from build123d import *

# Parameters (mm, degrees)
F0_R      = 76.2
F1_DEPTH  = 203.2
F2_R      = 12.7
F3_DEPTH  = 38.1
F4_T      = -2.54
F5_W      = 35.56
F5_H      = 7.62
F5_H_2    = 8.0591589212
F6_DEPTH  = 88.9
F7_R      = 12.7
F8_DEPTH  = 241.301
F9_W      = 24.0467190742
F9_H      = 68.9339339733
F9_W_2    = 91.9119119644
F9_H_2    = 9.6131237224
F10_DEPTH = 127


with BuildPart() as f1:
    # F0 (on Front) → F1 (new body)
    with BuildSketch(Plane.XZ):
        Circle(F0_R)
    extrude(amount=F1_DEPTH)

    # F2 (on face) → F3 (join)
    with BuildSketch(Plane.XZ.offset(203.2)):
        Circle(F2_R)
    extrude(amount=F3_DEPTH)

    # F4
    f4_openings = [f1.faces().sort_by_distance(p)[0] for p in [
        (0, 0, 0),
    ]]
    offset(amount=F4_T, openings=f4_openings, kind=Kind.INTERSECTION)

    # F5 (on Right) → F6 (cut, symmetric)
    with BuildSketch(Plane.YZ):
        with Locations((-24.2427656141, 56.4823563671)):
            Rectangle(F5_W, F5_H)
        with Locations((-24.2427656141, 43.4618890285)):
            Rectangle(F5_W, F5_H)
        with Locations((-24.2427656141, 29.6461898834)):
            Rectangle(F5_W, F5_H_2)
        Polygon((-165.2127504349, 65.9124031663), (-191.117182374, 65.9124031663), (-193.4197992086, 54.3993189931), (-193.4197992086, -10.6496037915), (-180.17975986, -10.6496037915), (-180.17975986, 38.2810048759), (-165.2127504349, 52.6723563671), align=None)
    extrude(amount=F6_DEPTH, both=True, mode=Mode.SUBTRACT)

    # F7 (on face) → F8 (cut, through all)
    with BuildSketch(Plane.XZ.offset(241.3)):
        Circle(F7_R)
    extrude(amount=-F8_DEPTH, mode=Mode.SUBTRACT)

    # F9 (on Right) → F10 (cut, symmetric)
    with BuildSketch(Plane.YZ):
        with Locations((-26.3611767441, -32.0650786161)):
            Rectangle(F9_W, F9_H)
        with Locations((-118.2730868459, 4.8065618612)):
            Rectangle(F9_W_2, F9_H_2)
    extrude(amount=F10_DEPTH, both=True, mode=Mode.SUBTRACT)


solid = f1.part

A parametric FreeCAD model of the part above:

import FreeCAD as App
import Part
import Sketcher

V = App.Vector
Q = App.Units.Quantity


def faces_at(feature, points):
    """Names of the faces that lie closest to the given points."""
    faces = feature.Shape.Faces
    near = lambda p: min(range(len(faces)), key=lambda i: faces[i].distToShape(Part.Vertex(*p))[0])
    return sorted({f"Face{near(p) + 1}" for p in points})

doc = App.newDocument("Part")
body = doc.addObject("PartDesign::Body", "Body")

# Sketch on XZ plane
sketch1 = body.newObject("Sketcher::SketchObject", "Sketch")
sketch1.AttachmentSupport = (doc.getObject("XZ_Plane"), [""])
sketch1.MapMode = "FlatFace"
sketch1.addGeometry(Part.Circle(V(0, 0, 0), V(0, 0, 1), 76), False)
sketch1.addConstraint(Sketcher.Constraint("Coincident", 0, 3, -1, 1))
sketch1.addConstraint(Sketcher.Constraint("Diameter", 0, Q("6 in")))
pad1 = body.newObject("PartDesign::Pad", "Pad")
pad1.Profile = sketch1
pad1.Length = Q("8 in")

# Sketch on XZ plane
sketch2 = body.newObject("Sketcher::SketchObject", "Sketch001")
sketch2.AttachmentSupport = (doc.getObject("XZ_Plane"), [""])
sketch2.MapMode = "FlatFace"
sketch2.AttachmentOffset = App.Placement(V(0, 0, 8 * 25.4), App.Rotation())
sketch2.addGeometry(Part.Circle(V(0, 0, 0), V(0, 0, 1), 13), False)
sketch2.addConstraint(Sketcher.Constraint("Coincident", 0, 3, -1, 1))
sketch2.addConstraint(Sketcher.Constraint("Diameter", 0, Q("1 in")))
pad2 = body.newObject("PartDesign::Pad", "Pad001")
pad2.Profile = sketch2
pad2.Length = Q("1.5 in")
doc.recompute()

thickness = body.newObject("PartDesign::Thickness", "Thickness")
thickness.Base = (pad2, faces_at(pad2, [(0, 0, 0)]))
thickness.Value = Q("0.1 in")
thickness.Reversed = True
thickness.Join = "Intersection"

# Sketch on YZ plane
sketch3 = body.newObject("Sketcher::SketchObject", "Sketch002")
sketch3.AttachmentSupport = (doc.getObject("YZ_Plane"), [""])
sketch3.MapMode = "FlatFace"
sketch3.addGeometry(Part.LineSegment(V(-42, 60, 0), V(-42, 53, 0)), False)
sketch3.addGeometry(Part.LineSegment(V(-42, 53, 0), V(-6, 53, 0)), False)
sketch3.addGeometry(Part.LineSegment(V(-6, 53, 0), V(-6, 60, 0)), False)
sketch3.addGeometry(Part.LineSegment(V(-6, 60, 0), V(-42, 60, 0)), False)
sketch3.addGeometry(Part.LineSegment(V(-42, 47, 0), V(-42, 40, 0)), False)
sketch3.addGeometry(Part.LineSegment(V(-42, 40, 0), V(-6, 40, 0)), False)
sketch3.addGeometry(Part.LineSegment(V(-6, 40, 0), V(-6, 47, 0)), False)
sketch3.addGeometry(Part.LineSegment(V(-6, 47, 0), V(-42, 47, 0)), False)
sketch3.addGeometry(Part.LineSegment(V(-42, 34, 0), V(-42, 26, 0)), False)
sketch3.addGeometry(Part.LineSegment(V(-42, 26, 0), V(-6, 26, 0)), False)
sketch3.addGeometry(Part.LineSegment(V(-6, 26, 0), V(-6, 34, 0)), False)
sketch3.addGeometry(Part.LineSegment(V(-6, 34, 0), V(-42, 34, 0)), False)
sketch3.addGeometry(Part.LineSegment(V(-165, 66, 0), V(-191, 66, 0)), False)
sketch3.addGeometry(Part.LineSegment(V(-191, 66, 0), V(-193, 54, 0)), False)
sketch3.addGeometry(Part.LineSegment(V(-193, 54, 0), V(-193, -11, 0)), False)
sketch3.addGeometry(Part.LineSegment(V(-193, -11, 0), V(-180, -11, 0)), False)
sketch3.addGeometry(Part.LineSegment(V(-180, -11, 0), V(-180, 38, 0)), False)
sketch3.addGeometry(Part.LineSegment(V(-180, 38, 0), V(-165, 53, 0)), False)
sketch3.addGeometry(Part.LineSegment(V(-165, 53, 0), V(-165, 66, 0)), False)
sketch3.addConstraint(Sketcher.Constraint("Coincident", 0, 2, 1, 1))
sketch3.addConstraint(Sketcher.Constraint("Coincident", 1, 2, 2, 1))
sketch3.addConstraint(Sketcher.Constraint("Coincident", 2, 2, 3, 1))
sketch3.addConstraint(Sketcher.Constraint("Coincident", 3, 2, 0, 1))
sketch3.addConstraint(Sketcher.Constraint("Coincident", 4, 2, 5, 1))
sketch3.addConstraint(Sketcher.Constraint("Coincident", 5, 2, 6, 1))
sketch3.addConstraint(Sketcher.Constraint("Coincident", 6, 2, 7, 1))
sketch3.addConstraint(Sketcher.Constraint("Coincident", 7, 2, 4, 1))
sketch3.addConstraint(Sketcher.Constraint("Coincident", 8, 2, 9, 1))
sketch3.addConstraint(Sketcher.Constraint("Coincident", 9, 2, 10, 1))
sketch3.addConstraint(Sketcher.Constraint("Coincident", 10, 2, 11, 1))
sketch3.addConstraint(Sketcher.Constraint("Coincident", 11, 2, 8, 1))
sketch3.addConstraint(Sketcher.Constraint("Coincident", 12, 2, 13, 1))
sketch3.addConstraint(Sketcher.Constraint("Coincident", 13, 2, 14, 1))
sketch3.addConstraint(Sketcher.Constraint("Coincident", 14, 2, 15, 1))
sketch3.addConstraint(Sketcher.Constraint("Coincident", 15, 2, 16, 1))
sketch3.addConstraint(Sketcher.Constraint("Coincident", 16, 2, 17, 1))
sketch3.addConstraint(Sketcher.Constraint("Coincident", 17, 2, 18, 1))
sketch3.addConstraint(Sketcher.Constraint("Coincident", 18, 2, 12, 1))
sketch3.addConstraint(Sketcher.Constraint("Vertical", 0))
sketch3.addConstraint(Sketcher.Constraint("Horizontal", 1))
sketch3.addConstraint(Sketcher.Constraint("Vertical", 2))
sketch3.addConstraint(Sketcher.Constraint("Horizontal", 3))
sketch3.addConstraint(Sketcher.Constraint("Vertical", 4))
sketch3.addConstraint(Sketcher.Constraint("Horizontal", 5))
sketch3.addConstraint(Sketcher.Constraint("Vertical", 6))
sketch3.addConstraint(Sketcher.Constraint("Horizontal", 7))
sketch3.addConstraint(Sketcher.Constraint("Vertical", 8))
sketch3.addConstraint(Sketcher.Constraint("Horizontal", 9))
sketch3.addConstraint(Sketcher.Constraint("Vertical", 10))
sketch3.addConstraint(Sketcher.Constraint("Horizontal", 11))
sketch3.addConstraint(Sketcher.Constraint("Horizontal", 12))
sketch3.addConstraint(Sketcher.Constraint("Vertical", 14))
sketch3.addConstraint(Sketcher.Constraint("Horizontal", 15))
sketch3.addConstraint(Sketcher.Constraint("Vertical", 16))
sketch3.addConstraint(Sketcher.Constraint("Vertical", 18))
sketch3.addConstraint(Sketcher.Constraint("Horizontal", 1, 2, 17, 2))
sketch3.addConstraint(Sketcher.Constraint("Vertical", 3, 2, 4, 2))
sketch3.addConstraint(Sketcher.Constraint("Vertical", 2, 2, 5, 2))
sketch3.addConstraint(Sketcher.Constraint("Vertical", 7, 2, 8, 2))
sketch3.addConstraint(Sketcher.Constraint("Vertical", 6, 2, 9, 2))
sketch3.addConstraint(Sketcher.Constraint("Equal", 2, 4))
sketch3.addConstraint(Sketcher.Constraint("DistanceX", 1, 1, 1, 2, Q("1.4 in")))
sketch3.addConstraint(Sketcher.Constraint("DistanceY", 0, 2, 0, 1, Q("0.3 in")))
sketch3.addConstraint(Sketcher.Constraint("DistanceX", 12, 2, 12, 1, Q("25.904432 mm")))
sketch3.addConstraint(Sketcher.Constraint("DistanceX", 15, 1, 15, 2, Q("13.240039 mm")))
sketch3.addConstraint(Sketcher.Constraint("DistanceY", 8, 2, 8, 1, Q("8.059159 mm")))
sketch3.addConstraint(Sketcher.Constraint("DistanceY", 16, 1, 16, 2, Q("48.930609 mm")))
sketch3.addConstraint(Sketcher.Constraint("DistanceX", 13, 2, -1, 1, Q("193.419799 mm")))
sketch3.addConstraint(Sketcher.Constraint("DistanceY", 16, 2, 12, 2, Q("27.631398 mm")))
sketch3.addConstraint(Sketcher.Constraint("Distance", 13, Q("11.741088 mm")))
sketch3.addConstraint(Sketcher.Constraint("DistanceY", 14, 2, 14, 1, Q("65.048923 mm")))
sketch3.addConstraint(Sketcher.Constraint("DistanceY", 18, 1, 18, 2, Q("13.240047 mm")))
sketch3.addConstraint(Sketcher.Constraint("DistanceY", -1, 1, 4, 2, Q("39.651889 mm")))
sketch3.addConstraint(Sketcher.Constraint("DistanceY", -1, 1, 8, 2, Q("25.61661 mm")))
sketch3.addConstraint(Sketcher.Constraint("DistanceY", -1, 1, 13, 2, Q("54.399319 mm")))
sketch3.addConstraint(Sketcher.Constraint("DistanceX", 0, 2, -1, 1, Q("42.022766 mm")))
pocket1 = body.newObject("PartDesign::Pocket", "Pocket")
pocket1.Profile = sketch3
pocket1.Length = Q("7 in")
pocket1.Midplane = True

# Sketch on XZ plane
sketch4 = body.newObject("Sketcher::SketchObject", "Sketch003")
sketch4.AttachmentSupport = (doc.getObject("XZ_Plane"), [""])
sketch4.MapMode = "FlatFace"
sketch4.AttachmentOffset = App.Placement(V(0, 0, 9.5 * 25.4), App.Rotation())
sketch4.addGeometry(Part.Circle(V(0, 0, 0), V(0, 0, 1), 13), False)
sketch4.addConstraint(Sketcher.Constraint("Coincident", 0, 3, -1, 1))
sketch4.addConstraint(Sketcher.Constraint("Diameter", 0, Q("1 in")))
pocket2 = body.newObject("PartDesign::Pocket", "Pocket001")
pocket2.Profile = sketch4
pocket2.Type = "ThroughAll"

# Sketch on YZ plane
sketch5 = body.newObject("Sketcher::SketchObject", "Sketch004")
sketch5.AttachmentSupport = (doc.getObject("YZ_Plane"), [""])
sketch5.MapMode = "FlatFace"
sketch5.addGeometry(Part.LineSegment(V(-38, 2, 0), V(-38, -67, 0)), False)
sketch5.addGeometry(Part.LineSegment(V(-38, -67, 0), V(-14, -67, 0)), False)
sketch5.addGeometry(Part.LineSegment(V(-14, -67, 0), V(-14, 2, 0)), False)
sketch5.addGeometry(Part.LineSegment(V(-14, 2, 0), V(-38, 2, 0)), False)
sketch5.addGeometry(Part.LineSegment(V(-164, 10, 0), V(-164, 0, 0)), False)
sketch5.addGeometry(Part.LineSegment(V(-164, 0, 0), V(-72, 0, 0)), False)
sketch5.addGeometry(Part.LineSegment(V(-72, 0, 0), V(-72, 10, 0)), False)
sketch5.addGeometry(Part.LineSegment(V(-72, 10, 0), V(-164, 10, 0)), False)
sketch5.addConstraint(Sketcher.Constraint("Coincident", 0, 2, 1, 1))
sketch5.addConstraint(Sketcher.Constraint("Coincident", 1, 2, 2, 1))
sketch5.addConstraint(Sketcher.Constraint("Coincident", 2, 2, 3, 1))
sketch5.addConstraint(Sketcher.Constraint("Coincident", 3, 2, 0, 1))
sketch5.addConstraint(Sketcher.Constraint("Coincident", 4, 2, 5, 1))
sketch5.addConstraint(Sketcher.Constraint("Coincident", 5, 2, 6, 1))
sketch5.addConstraint(Sketcher.Constraint("Coincident", 6, 2, 7, 1))
sketch5.addConstraint(Sketcher.Constraint("Coincident", 7, 2, 4, 1))
sketch5.addConstraint(Sketcher.Constraint("Vertical", 0))
sketch5.addConstraint(Sketcher.Constraint("Horizontal", 1))
sketch5.addConstraint(Sketcher.Constraint("Vertical", 2))
sketch5.addConstraint(Sketcher.Constraint("Horizontal", 3))
sketch5.addConstraint(Sketcher.Constraint("Vertical", 4))
sketch5.addConstraint(Sketcher.Constraint("Horizontal", 5))
sketch5.addConstraint(Sketcher.Constraint("Vertical", 6))
sketch5.addConstraint(Sketcher.Constraint("Horizontal", 7))
sketch5.addConstraint(Sketcher.Constraint("PointOnObject", 4, 2, -1))
sketch5.addConstraint(Sketcher.Constraint("DistanceX", 1, 1, 1, 2, Q("24.046719 mm")))
sketch5.addConstraint(Sketcher.Constraint("DistanceX", 5, 1, 5, 2, Q("91.911912 mm")))
sketch5.addConstraint(Sketcher.Constraint("DistanceY", 0, 2, 0, 1, Q("68.933934 mm")))
sketch5.addConstraint(Sketcher.Constraint("DistanceY", 4, 2, 4, 1, Q("9.613124 mm")))
sketch5.addConstraint(Sketcher.Constraint("DistanceY", -1, 1, 2, 2, Q("2.401888 mm")))
sketch5.addConstraint(Sketcher.Constraint("DistanceX", 5, 2, -1, 1, Q("72.317131 mm")))
sketch5.addConstraint(Sketcher.Constraint("DistanceX", 0, 2, -1, 1, Q("38.384536 mm")))
pocket3 = body.newObject("PartDesign::Pocket", "Pocket002")
pocket3.Profile = sketch5
pocket3.Length = Q("10 in")
pocket3.Midplane = True

doc.recompute()
